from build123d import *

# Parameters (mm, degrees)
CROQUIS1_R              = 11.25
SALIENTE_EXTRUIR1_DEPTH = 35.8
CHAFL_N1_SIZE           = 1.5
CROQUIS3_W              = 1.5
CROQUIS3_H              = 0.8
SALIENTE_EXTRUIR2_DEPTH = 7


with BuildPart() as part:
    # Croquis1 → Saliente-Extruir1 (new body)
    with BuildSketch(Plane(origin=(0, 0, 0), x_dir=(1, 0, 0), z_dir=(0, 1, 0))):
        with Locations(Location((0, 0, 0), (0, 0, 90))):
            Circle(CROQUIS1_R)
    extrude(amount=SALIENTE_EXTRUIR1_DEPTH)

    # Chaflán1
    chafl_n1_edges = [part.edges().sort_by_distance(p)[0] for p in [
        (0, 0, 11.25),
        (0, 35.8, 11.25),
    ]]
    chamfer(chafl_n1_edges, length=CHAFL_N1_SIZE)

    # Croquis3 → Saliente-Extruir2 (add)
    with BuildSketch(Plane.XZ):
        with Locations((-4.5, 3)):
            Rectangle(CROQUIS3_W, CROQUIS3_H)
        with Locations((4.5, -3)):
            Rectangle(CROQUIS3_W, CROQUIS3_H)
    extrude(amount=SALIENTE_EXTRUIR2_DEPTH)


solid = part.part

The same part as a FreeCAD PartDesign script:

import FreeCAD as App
import Part
import Sketcher

V = App.Vector
Q = App.Units.Quantity


def edges_at(feature, points):
    """Names of the edges that pass closest to the given points."""
    edges = feature.Shape.Edges
    near = lambda p: min(range(len(edges)), key=lambda i: edges[i].distToShape(Part.Vertex(*p))[0])
    return sorted({f"Edge{near(p) + 1}" for p in points})


def add_polygon(sketch, points):
    """Adds a closed chain of lines whose ends are joined by coincident constraints."""
    first, n = sketch.GeometryCount, len(points)
    for a, b in zip(points, points[1:] + points[:1]):
        sketch.addGeometry(Part.LineSegment(App.Vector(*a, 0), App.Vector(*b, 0)), False)
    for i in range(n):
        sketch.addConstraint(Sketcher.Constraint("Coincident", first + i, 2, first + (i + 1) % n, 1))

doc = App.newDocument("Part")
body = doc.addObject("PartDesign::Body", "Body")

# Sketch on XZ plane
sketch1 = body.newObject("Sketcher::SketchObject", "Sketch")
sketch1.AttachmentSupport = (doc.getObject("XZ_Plane"), [""])
sketch1.MapMode = "FlatFace"
sketch1.addGeometry(Part.Circle(V(0, 0, 0), V(0, 0, 1), 11.25), False)
sketch1.addConstraint(Sketcher.Constraint("Coincident", 0, 3, -1, 1))
sketch1.addConstraint(Sketcher.Constraint("Diameter", 0, Q("22.5 mm")))
pad1 = body.newObject("PartDesign::Pad", "Pad")
pad1.Profile = sketch1
pad1.Length = 35.8
pad1.Reversed = True
doc.recompute()

chamfer = body.newObject("PartDesign::Chamfer", "Chamfer")
chamfer.Base = (pad1, edges_at(pad1, [(0, 0, 11.25), (0, 35.8, 11.25)]))
chamfer.Size = 1.5

# Sketch on XZ plane
sketch2 = body.newObject("Sketcher::SketchObject", "Sketch001")
sketch2.AttachmentSupport = (doc.getObject("XZ_Plane"), [""])
sketch2.MapMode = "FlatFace"
add_polygon(sketch2, [(-5.25, 3.4), (-5.25, 2.6), (-3.75, 2.6), (-3.75, 3.4)])  # lines 0-3
add_polygon(sketch2, [(3.75, -2.6), (3.75, -3.4), (5.25, -3.4), (5.25, -2.6)])  # lines 4-7
sketch2.addConstraint(Sketcher.Constraint("Vertical", 0))
sketch2.addConstraint(Sketcher.Constraint("Horizontal", 1))
sketch2.addConstraint(Sketcher.Constraint("Vertical", 2))
sketch2.addConstraint(Sketcher.Constraint("Horizontal", 3))
sketch2.addConstraint(Sketcher.Constraint("Vertical", 4))
sketch2.addConstraint(Sketcher.Constraint("Horizontal", 5))
sketch2.addConstraint(Sketcher.Constraint("Vertical", 6))
sketch2.addConstraint(Sketcher.Constraint("Horizontal", 7))
sketch2.addConstraint(Sketcher.Constraint("Symmetric", 2, 2, 4, 2, -1, 1))
sketch2.addConstraint(Sketcher.Constraint("Symmetric", 0, 2, 6, 2, -1, 1))
sketch2.addConstraint(Sketcher.Constraint("DistanceX", 1, 1, 1, 2, Q("1.5 mm")))
sketch2.addConstraint(Sketcher.Constraint("DistanceY", 0, 2, 0, 1, Q("0.8 mm")))
sketch2.addConstraint(Sketcher.Constraint("DistanceY", 4, 2, 1, 2, Q("6 mm")))
sketch2.addConstraint(Sketcher.Constraint("DistanceX", 0, 2, 4, 2, Q("9 mm")))
pad2 = body.newObject("PartDesign::Pad", "Pad001")
pad2.Profile = sketch2
pad2.Length = 7

doc.recompute()
